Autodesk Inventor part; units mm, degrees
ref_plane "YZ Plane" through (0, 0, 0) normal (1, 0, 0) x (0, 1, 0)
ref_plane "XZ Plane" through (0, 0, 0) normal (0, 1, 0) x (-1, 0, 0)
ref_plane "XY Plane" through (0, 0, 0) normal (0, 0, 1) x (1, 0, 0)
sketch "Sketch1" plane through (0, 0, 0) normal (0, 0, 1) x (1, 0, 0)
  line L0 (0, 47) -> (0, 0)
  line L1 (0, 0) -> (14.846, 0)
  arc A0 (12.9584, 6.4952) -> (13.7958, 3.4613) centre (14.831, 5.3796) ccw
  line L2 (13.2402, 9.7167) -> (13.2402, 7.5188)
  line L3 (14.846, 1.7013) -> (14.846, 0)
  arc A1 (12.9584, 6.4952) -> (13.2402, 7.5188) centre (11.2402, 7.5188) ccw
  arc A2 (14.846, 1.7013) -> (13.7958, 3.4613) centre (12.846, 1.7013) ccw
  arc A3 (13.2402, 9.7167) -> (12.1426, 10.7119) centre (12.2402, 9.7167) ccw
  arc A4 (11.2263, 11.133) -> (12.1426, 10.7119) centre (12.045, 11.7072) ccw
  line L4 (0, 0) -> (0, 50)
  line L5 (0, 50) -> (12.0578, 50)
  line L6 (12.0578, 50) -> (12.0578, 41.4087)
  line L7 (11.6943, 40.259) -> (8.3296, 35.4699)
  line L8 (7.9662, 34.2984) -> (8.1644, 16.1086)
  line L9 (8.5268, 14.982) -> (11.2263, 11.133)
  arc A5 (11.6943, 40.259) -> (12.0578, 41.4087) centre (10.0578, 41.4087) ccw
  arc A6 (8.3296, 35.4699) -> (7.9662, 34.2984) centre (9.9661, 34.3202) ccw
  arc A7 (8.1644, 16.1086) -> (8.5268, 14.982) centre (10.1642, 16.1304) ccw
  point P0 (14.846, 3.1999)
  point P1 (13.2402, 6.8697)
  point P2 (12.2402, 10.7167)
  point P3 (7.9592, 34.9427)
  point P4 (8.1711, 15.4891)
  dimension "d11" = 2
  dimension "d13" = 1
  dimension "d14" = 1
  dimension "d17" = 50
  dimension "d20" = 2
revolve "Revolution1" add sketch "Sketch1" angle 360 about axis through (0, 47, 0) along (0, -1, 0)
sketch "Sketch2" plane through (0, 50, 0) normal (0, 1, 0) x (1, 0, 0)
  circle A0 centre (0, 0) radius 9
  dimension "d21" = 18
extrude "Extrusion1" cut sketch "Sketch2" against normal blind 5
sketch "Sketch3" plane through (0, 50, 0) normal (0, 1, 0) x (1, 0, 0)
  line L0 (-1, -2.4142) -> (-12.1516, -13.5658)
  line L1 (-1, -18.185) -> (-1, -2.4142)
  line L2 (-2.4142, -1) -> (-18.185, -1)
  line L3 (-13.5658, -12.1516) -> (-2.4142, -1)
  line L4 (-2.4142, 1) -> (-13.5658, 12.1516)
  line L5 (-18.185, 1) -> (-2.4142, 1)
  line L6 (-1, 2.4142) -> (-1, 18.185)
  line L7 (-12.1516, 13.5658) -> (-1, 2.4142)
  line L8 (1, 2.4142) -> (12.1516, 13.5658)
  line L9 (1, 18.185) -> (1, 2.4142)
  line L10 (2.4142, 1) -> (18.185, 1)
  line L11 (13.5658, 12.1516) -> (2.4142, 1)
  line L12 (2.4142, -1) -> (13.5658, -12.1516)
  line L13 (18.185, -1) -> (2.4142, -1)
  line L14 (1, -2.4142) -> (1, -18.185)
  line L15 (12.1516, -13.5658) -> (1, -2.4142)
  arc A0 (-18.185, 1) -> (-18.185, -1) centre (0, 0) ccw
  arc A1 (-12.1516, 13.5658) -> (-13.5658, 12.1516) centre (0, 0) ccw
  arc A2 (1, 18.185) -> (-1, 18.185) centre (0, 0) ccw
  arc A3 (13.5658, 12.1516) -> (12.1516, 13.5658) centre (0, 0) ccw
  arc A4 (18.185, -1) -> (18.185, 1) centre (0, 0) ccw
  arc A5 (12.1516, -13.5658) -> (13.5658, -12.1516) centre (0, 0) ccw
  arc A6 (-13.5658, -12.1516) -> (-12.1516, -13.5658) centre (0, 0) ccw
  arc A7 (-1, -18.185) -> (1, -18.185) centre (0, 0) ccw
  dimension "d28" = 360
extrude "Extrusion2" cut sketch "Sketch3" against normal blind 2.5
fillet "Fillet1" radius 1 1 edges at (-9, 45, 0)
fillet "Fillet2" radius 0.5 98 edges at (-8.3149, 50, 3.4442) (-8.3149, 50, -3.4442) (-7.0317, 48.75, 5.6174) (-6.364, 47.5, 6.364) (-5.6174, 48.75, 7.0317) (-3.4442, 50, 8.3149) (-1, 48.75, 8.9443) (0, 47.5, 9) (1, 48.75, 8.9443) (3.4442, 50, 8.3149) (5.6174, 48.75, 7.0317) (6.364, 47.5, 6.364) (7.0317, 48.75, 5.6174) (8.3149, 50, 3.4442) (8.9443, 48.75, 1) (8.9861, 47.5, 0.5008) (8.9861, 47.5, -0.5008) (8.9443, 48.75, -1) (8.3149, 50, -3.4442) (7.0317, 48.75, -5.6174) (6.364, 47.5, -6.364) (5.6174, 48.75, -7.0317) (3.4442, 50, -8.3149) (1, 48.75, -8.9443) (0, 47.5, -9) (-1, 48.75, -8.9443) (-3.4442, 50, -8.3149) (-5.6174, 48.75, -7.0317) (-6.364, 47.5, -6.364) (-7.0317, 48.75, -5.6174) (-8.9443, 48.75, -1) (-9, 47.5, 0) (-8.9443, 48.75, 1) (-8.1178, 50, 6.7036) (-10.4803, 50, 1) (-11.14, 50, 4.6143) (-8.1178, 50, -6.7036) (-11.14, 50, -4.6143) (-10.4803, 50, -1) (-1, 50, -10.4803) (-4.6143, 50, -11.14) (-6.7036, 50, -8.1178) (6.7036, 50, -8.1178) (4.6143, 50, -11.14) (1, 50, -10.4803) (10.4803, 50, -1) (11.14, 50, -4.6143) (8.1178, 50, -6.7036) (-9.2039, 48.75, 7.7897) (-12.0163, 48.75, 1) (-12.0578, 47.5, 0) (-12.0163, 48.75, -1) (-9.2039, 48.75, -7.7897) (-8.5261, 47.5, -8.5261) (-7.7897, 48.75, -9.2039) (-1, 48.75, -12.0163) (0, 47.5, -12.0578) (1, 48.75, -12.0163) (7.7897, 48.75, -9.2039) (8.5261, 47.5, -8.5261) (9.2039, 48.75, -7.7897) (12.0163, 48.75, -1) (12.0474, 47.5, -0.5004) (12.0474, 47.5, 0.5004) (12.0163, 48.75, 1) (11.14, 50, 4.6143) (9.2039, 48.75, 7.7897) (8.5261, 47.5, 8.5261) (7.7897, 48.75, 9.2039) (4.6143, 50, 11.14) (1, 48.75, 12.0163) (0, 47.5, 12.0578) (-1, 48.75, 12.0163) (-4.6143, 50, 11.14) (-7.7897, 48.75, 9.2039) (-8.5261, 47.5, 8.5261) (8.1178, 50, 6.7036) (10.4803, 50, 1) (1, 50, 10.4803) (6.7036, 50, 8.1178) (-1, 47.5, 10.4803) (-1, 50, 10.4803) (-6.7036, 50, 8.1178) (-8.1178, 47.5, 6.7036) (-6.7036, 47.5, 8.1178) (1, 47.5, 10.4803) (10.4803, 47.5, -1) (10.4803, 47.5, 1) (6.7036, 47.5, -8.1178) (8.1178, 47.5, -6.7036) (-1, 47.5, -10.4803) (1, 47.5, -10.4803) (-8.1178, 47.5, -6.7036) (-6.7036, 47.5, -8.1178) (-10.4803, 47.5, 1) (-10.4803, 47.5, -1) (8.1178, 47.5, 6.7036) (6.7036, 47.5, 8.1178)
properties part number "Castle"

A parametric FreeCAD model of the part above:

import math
import FreeCAD as App
import Part
import Sketcher
Q = App.Units.Quantity


def edges_at(feature, points):
    """Names of the edges that pass closest to the given points."""
    edges = feature.Shape.Edges
    near = lambda p: min(range(len(edges)), key=lambda i: edges[i].distToShape(Part.Vertex(*p))[0])
    return sorted({f"Edge{near(p) + 1}" for p in points})

doc = App.newDocument("Part")
body = doc.addObject("PartDesign::Body", "Body")

sketch1 = body.newObject("Sketcher::SketchObject", "Sketch")
sketch1.AttachmentSupport = (doc.getObject("XY_Plane"), [""])
sketch1.MapMode = "FlatFace"
sketch1.addGeometry([
    Part.LineSegment(App.Vector(0, 50, 0), App.Vector(0, 0, 0)),
    Part.LineSegment(App.Vector(0, 0, 0), App.Vector(14.8, 0, 0)),
    Part.LineSegment(App.Vector(14.8, 0, 0), App.Vector(14.8, 1.7, 0)),
    Part.ArcOfCircle(Part.Circle(App.Vector(12.8, 1.7, 0), App.Vector(0, 0, 1), 2), math.radians(0), math.radians(62)),
    Part.ArcOfCircle(Part.Circle(App.Vector(14.8, 5.4, 0), App.Vector(0, 0, 1), 2.2), math.radians(149), math.radians(242)),
    Part.ArcOfCircle(Part.Circle(App.Vector(11.2, 7.5, 0), App.Vector(0, 0, 1), 2), math.radians(-31), math.radians(0)),
    Part.LineSegment(App.Vector(13.2, 7.5, 0), App.Vector(13.2, 9.7, 0)),
    Part.ArcOfCircle(Part.Circle(App.Vector(12.2, 9.7, 0), App.Vector(0, 0, 1), 1), math.radians(0), math.radians(96)),
    Part.ArcOfCircle(Part.Circle(App.Vector(12, 11.7, 0), App.Vector(0, 0, 1), 1), math.radians(-145), math.radians(-84)),
    Part.LineSegment(App.Vector(11.2, 11.1, 0), App.Vector(8.5, 15, 0)),
    Part.ArcOfCircle(Part.Circle(App.Vector(10.2, 16.1, 0), App.Vector(0, 0, 1), 2), math.radians(-179), math.radians(-145)),
    Part.LineSegment(App.Vector(8.2, 16.1, 0), App.Vector(8, 34.3, 0)),
    Part.ArcOfCircle(Part.Circle(App.Vector(10, 34.3, 0), App.Vector(0, 0, 1), 2), math.radians(145), math.radians(181)),
    Part.LineSegment(App.Vector(8.3, 35.5, 0), App.Vector(11.7, 40.3, 0)),
    Part.ArcOfCircle(Part.Circle(App.Vector(10.1, 41.4, 0), App.Vector(0, 0, 1), 2), math.radians(-35), math.radians(0)),
    Part.LineSegment(App.Vector(12.1, 41.4, 0), App.Vector(12.1, 50, 0)),
    Part.LineSegment(App.Vector(12.1, 50, 0), App.Vector(0, 50, 0)),
], False)
sketch1.addConstraint([
    Sketcher.Constraint("Coincident", 0, 2, 1, 1),
    Sketcher.Constraint("Coincident", 1, 2, 2, 1),
    Sketcher.Constraint("Tangent", 2, 2, 3, 1),
    Sketcher.Constraint("Tangent", 3, 2, 4, 2),
    Sketcher.Constraint("Tangent", 4, 1, 5, 1),
    Sketcher.Constraint("Tangent", 5, 2, 6, 1),
    Sketcher.Constraint("Tangent", 6, 2, 7, 1),
    Sketcher.Constraint("Tangent", 7, 2, 8, 2),
    Sketcher.Constraint("Tangent", 8, 1, 9, 1),
    Sketcher.Constraint("Tangent", 9, 2, 10, 2),
    Sketcher.Constraint("Tangent", 10, 1, 11, 1),
    Sketcher.Constraint("Tangent", 11, 2, 12, 2),
    Sketcher.Constraint("Tangent", 12, 1, 13, 1),
    Sketcher.Constraint("Tangent", 13, 2, 14, 1),
    Sketcher.Constraint("Tangent", 14, 2, 15, 1),
    Sketcher.Constraint("Coincident", 15, 2, 16, 1),
    Sketcher.Constraint("Coincident", 16, 2, 0, 1),
    Sketcher.Constraint("Vertical", 0),
    Sketcher.Constraint("Horizontal", 1),
    Sketcher.Constraint("Vertical", 2),
    Sketcher.Constraint("Vertical", 6),
    Sketcher.Constraint("Vertical", 15),
    Sketcher.Constraint("Horizontal", 16),
    Sketcher.Constraint("Coincident", 0, 2, -1, 1),
    Sketcher.Constraint("Equal", 3, 5),
    Sketcher.Constraint("Equal", 7, 8),
    Sketcher.Constraint("Equal", 5, 10),
    Sketcher.Constraint("Equal", 10, 12),
    Sketcher.Constraint("Equal", 12, 14),
    Sketcher.Constraint("Radius", 3, 2.0),
    Sketcher.Constraint("Radius", 7, 1.0),
    Sketcher.Constraint("DistanceY", 0, 2, 0, 1, 50.0),
    Sketcher.Constraint("Angle", 13, Q("54.909 deg")),
    Sketcher.Constraint("Radius", 4, 2.1797),
    Sketcher.Constraint("DistanceX", 1, 1, 1, 2, 14.846),
    Sketcher.Constraint("DistanceY", 6, 1, 6, 2, 2.198),
    Sketcher.Constraint("DistanceY", -1, 1, 12, 1, 35.47),
    Sketcher.Constraint("DistanceY", 5, 3, 14, 3, 33.89),
    Sketcher.Constraint("DistanceY", 3, 3, 3, 2, 1.76),
    Sketcher.Constraint("DistanceY", 7, 2, 9, 2, 4.27),
    Sketcher.Constraint("DistanceX", 10, 3, 13, 2, 1.53),
    Sketcher.Constraint("Distance", 13, 5.853),
    Sketcher.Constraint("DistanceX", 16, 2, 16, 1, 12.0578),
    Sketcher.Constraint("DistanceY", 2, 1, 2, 2, 1.7013),
    Sketcher.Constraint("DistanceX", -1, 1, 8, 3, 12.045),
])
revolution = body.newObject("PartDesign::Revolution", "Revolution")
revolution.Profile = sketch1
revolution.ReferenceAxis = (sketch1, ["V_Axis"])
revolution.Angle = 360

sketch2 = body.newObject("Sketcher::SketchObject", "Sketch001")
sketch2.AttachmentSupport = (doc.getObject("XZ_Plane"), [""])
sketch2.MapMode = "FlatFace"
sketch2.AttachmentOffset = App.Placement(App.Vector(0, 0, -50), App.Rotation())
sketch2.addGeometry(Part.Circle(App.Vector(0, 0, 0), App.Vector(0, 0, 1), 9), False)
sketch2.addConstraint([
    Sketcher.Constraint("Coincident", 0, 3, -1, 1),
    Sketcher.Constraint("Diameter", 0, 18.0),
])
pocket1 = body.newObject("PartDesign::Pocket", "Pocket")
pocket1.Profile = sketch2
pocket1.Length = 5
pocket1.Reversed = True

sketch3 = body.newObject("Sketcher::SketchObject", "Sketch002")
sketch3.AttachmentSupport = (doc.getObject("XZ_Plane"), [""])
sketch3.MapMode = "FlatFace"
sketch3.AttachmentOffset = App.Placement(App.Vector(0, 0, -50), App.Rotation())
sketch3.addGeometry([
    Part.LineSegment(App.Vector(-12.2, 13.6, 0), App.Vector(-1, 2.4, 0)),
    Part.LineSegment(App.Vector(-1, 2.4, 0), App.Vector(-1, 18.2, 0)),
    Part.ArcOfCircle(Part.Circle(App.Vector(0, 0, 0), App.Vector(0, 0, 1), 18.2), math.radians(86.85), math.radians(93.15)),
    Part.LineSegment(App.Vector(1, 18.2, 0), App.Vector(1, 2.4, 0)),
    Part.LineSegment(App.Vector(1, 2.4, 0), App.Vector(12.2, 13.6, 0)),
    Part.ArcOfCircle(Part.Circle(App.Vector(0, 0, 0), App.Vector(0, 0, 1), 18.2), math.radians(41.85), math.radians(48.15)),
    Part.LineSegment(App.Vector(13.6, 12.2, 0), App.Vector(2.4, 1, 0)),
    Part.LineSegment(App.Vector(2.4, 1, 0), App.Vector(18.2, 1, 0)),
    Part.ArcOfCircle(Part.Circle(App.Vector(0, 0, 0), App.Vector(0, 0, 1), 18.2), math.radians(-3.15), math.radians(3.15)),
    Part.LineSegment(App.Vector(18.2, -1, 0), App.Vector(2.4, -1, 0)),
    Part.LineSegment(App.Vector(2.4, -1, 0), App.Vector(13.6, -12.2, 0)),
    Part.ArcOfCircle(Part.Circle(App.Vector(0, 0, 0), App.Vector(0, 0, 1), 18.2), math.radians(-48.15), math.radians(-41.85)),
    Part.LineSegment(App.Vector(12.2, -13.6, 0), App.Vector(1, -2.4, 0)),
    Part.LineSegment(App.Vector(1, -2.4, 0), App.Vector(1, -18.2, 0)),
    Part.ArcOfCircle(Part.Circle(App.Vector(0, 0, 0), App.Vector(0, 0, 1), 18.2), math.radians(-93.15), math.radians(-86.85)),
    Part.LineSegment(App.Vector(-1, -18.2, 0), App.Vector(-1, -2.4, 0)),
    Part.LineSegment(App.Vector(-1, -2.4, 0), App.Vector(-12.2, -13.6, 0)),
    Part.ArcOfCircle(Part.Circle(App.Vector(0, 0, 0), App.Vector(0, 0, 1), 18.2), math.radians(-138.15), math.radians(-131.85)),
    Part.LineSegment(App.Vector(-13.6, -12.2, 0), App.Vector(-2.4, -1, 0)),
    Part.LineSegment(App.Vector(-2.4, -1, 0), App.Vector(-18.2, -1, 0)),
    Part.ArcOfCircle(Part.Circle(App.Vector(0, 0, 0), App.Vector(0, 0, 1), 18.2), math.radians(176.85), math.radians(183.15)),
    Part.LineSegment(App.Vector(-18.2, 1, 0), App.Vector(-2.4, 1, 0)),
    Part.LineSegment(App.Vector(-2.4, 1, 0), App.Vector(-13.6, 12.2, 0)),
    Part.ArcOfCircle(Part.Circle(App.Vector(0, 0, 0), App.Vector(0, 0, 1), 18.2), math.radians(131.85), math.radians(138.15)),
], False)
sketch3.addConstraint([
    Sketcher.Constraint("Coincident", 0, 2, 1, 1),
    Sketcher.Constraint("Coincident", 1, 2, 2, 2),
    Sketcher.Constraint("Coincident", 2, 1, 3, 1),
    Sketcher.Constraint("Coincident", 3, 2, 4, 1),
    Sketcher.Constraint("Coincident", 4, 2, 5, 2),
    Sketcher.Constraint("Coincident", 5, 1, 6, 1),
    Sketcher.Constraint("Coincident", 6, 2, 7, 1),
    Sketcher.Constraint("Coincident", 7, 2, 8, 2),
    Sketcher.Constraint("Coincident", 8, 1, 9, 1),
    Sketcher.Constraint("Coincident", 9, 2, 10, 1),
    Sketcher.Constraint("Coincident", 10, 2, 11, 2),
    Sketcher.Constraint("Coincident", 11, 1, 12, 1),
    Sketcher.Constraint("Coincident", 12, 2, 13, 1),
    Sketcher.Constraint("Coincident", 13, 2, 14, 2),
    Sketcher.Constraint("Coincident", 14, 1, 15, 1),
    Sketcher.Constraint("Coincident", 15, 2, 16, 1),
    Sketcher.Constraint("Coincident", 16, 2, 17, 2),
    Sketcher.Constraint("Coincident", 17, 1, 18, 1),
    Sketcher.Constraint("Coincident", 18, 2, 19, 1),
    Sketcher.Constraint("Coincident", 19, 2, 20, 2),
    Sketcher.Constraint("Coincident", 20, 1, 21, 1),
    Sketcher.Constraint("Coincident", 21, 2, 22, 1),
    Sketcher.Constraint("Coincident", 22, 2, 23, 2),
    Sketcher.Constraint("Coincident", 23, 1, 0, 1),
    Sketcher.Constraint("Vertical", 1),
    Sketcher.Constraint("Vertical", 3),
    Sketcher.Constraint("Horizontal", 7),
    Sketcher.Constraint("Horizontal", 9),
    Sketcher.Constraint("Vertical", 13),
    Sketcher.Constraint("Vertical", 15),
    Sketcher.Constraint("Horizontal", 19),
    Sketcher.Constraint("Horizontal", 21),
    Sketcher.Constraint("Coincident", 2, 3, -1, 1),
    Sketcher.Constraint("Coincident", 5, 3, -1, 1),
    Sketcher.Constraint("Coincident", 8, 3, -1, 1),
    Sketcher.Constraint("Coincident", 11, 3, -1, 1),
    Sketcher.Constraint("Coincident", 14, 3, -1, 1),
    Sketcher.Constraint("Coincident", 17, 3, -1, 1),
    Sketcher.Constraint("Coincident", 20, 3, -1, 1),
    Sketcher.Constraint("Coincident", 23, 3, -1, 1),
    Sketcher.Constraint("Equal", 2, 5),
    Sketcher.Constraint("Equal", 5, 8),
    Sketcher.Constraint("Equal", 8, 11),
    Sketcher.Constraint("Equal", 11, 14),
    Sketcher.Constraint("Equal", 14, 17),
    Sketcher.Constraint("Equal", 17, 20),
    Sketcher.Constraint("Equal", 20, 23),
    Sketcher.Constraint("Symmetric", 0, 2, 12, 2, -1, 1),
    Sketcher.Constraint("Symmetric", 3, 2, 15, 2, -1, 1),
    Sketcher.Constraint("Symmetric", 6, 2, 18, 2, -1, 1),
    Sketcher.Constraint("Symmetric", 9, 2, 21, 2, -1, 1),
    Sketcher.Constraint("Symmetric", 0, 2, 3, 2, -2),
    Sketcher.Constraint("Symmetric", 9, 2, 18, 2, -2),
    Sketcher.Constraint("Perpendicular", 0, 4),
    Sketcher.Constraint("Parallel", 4, 6),
    Sketcher.Constraint("Perpendicular", 6, 10),
    Sketcher.Constraint("Parallel", 10, 12),
    Sketcher.Constraint("Perpendicular", 12, 16),
    Sketcher.Constraint("Parallel", 16, 18),
    Sketcher.Constraint("Perpendicular", 18, 22),
    Sketcher.Constraint("Horizontal", 11, 1, 16, 2),
    Sketcher.Constraint("Equal", 21, 1),
    Sketcher.Constraint("Equal", 4, 6),
    Sketcher.Constraint("DistanceX", 0, 2, -1, 1, 1.0),
    Sketcher.Constraint("Radius", 2, 18.2125),
    Sketcher.Constraint("DistanceX", 7, 1, 7, 2, 15.7708),
])
pocket2 = body.newObject("PartDesign::Pocket", "Pocket001")
pocket2.Profile = sketch3
pocket2.Length = 2.5
pocket2.Reversed = True
doc.recompute()

fillet = body.newObject("PartDesign::Fillet", "Fillet")
fillet.Base = (pocket2, edges_at(pocket2, [(-9, 45, 0)]))
fillet.Radius = 1
doc.recompute()

fillet2 = body.newObject("PartDesign::Fillet", "Fillet001")
fillet2.Base = (fillet, edges_at(fillet, [
    (-8.315, 50, 3.444),
    (-8.315, 50, -3.444),
    (-7.032, 48.75, 5.617),
    (-6.364, 47.5, 6.364),
    (-5.617, 48.75, 7.032),
    (-3.444, 50, 8.315),
    (-1, 48.75, 8.944),
    (0, 47.5, 9),
    (1, 48.75, 8.944),
    (3.444, 50, 8.315),
    (5.617, 48.75, 7.032),
    (6.364, 47.5, 6.364),
    (7.032, 48.75, 5.617),
    (8.315, 50, 3.444),
    (8.944, 48.75, 1),
    (8.986, 47.5, 0.501),
    (8.986, 47.5, -0.501),
    (8.944, 48.75, -1),
    (8.315, 50, -3.444),
    (7.032, 48.75, -5.617),
    (6.364, 47.5, -6.364),
    (5.617, 48.75, -7.032),
    (3.444, 50, -8.315),
    (1, 48.75, -8.944),
    (0, 47.5, -9),
    (-1, 48.75, -8.944),
    (-3.444, 50, -8.315),
    (-5.617, 48.75, -7.032),
    (-6.364, 47.5, -6.364),
    (-7.032, 48.75, -5.617),
    (-8.944, 48.75, -1),
    (-9, 47.5, 0),
    (-8.944, 48.75, 1),
    (-8.118, 50, 6.704),
    (-10.48, 50, 1),
    (-11.14, 50, 4.614),
    (-8.118, 50, -6.704),
    (-11.14, 50, -4.614),
    (-10.48, 50, -1),
    (-1, 50, -10.48),
    (-4.614, 50, -11.14),
    (-6.704, 50, -8.118),
    (6.704, 50, -8.118),
    (4.614, 50, -11.14),
    (1, 50, -10.48),
    (10.48, 50, -1),
    (11.14, 50, -4.614),
    (8.118, 50, -6.704),
    (-9.204, 48.75, 7.79),
    (-12.016, 48.75, 1),
    (-12.058, 47.5, 0),
    (-12.016, 48.75, -1),
    (-9.204, 48.75, -7.79),
    (-8.526, 47.5, -8.526),
    (-7.79, 48.75, -9.204),
    (-1, 48.75, -12.016),
    (0, 47.5, -12.058),
    (1, 48.75, -12.016),
    (7.79, 48.75, -9.204),
    (8.526, 47.5, -8.526),
    (9.204, 48.75, -7.79),
    (12.016, 48.75, -1),
    (12.047, 47.5, -0.5),
    (12.047, 47.5, 0.5),
    (12.016, 48.75, 1),
    (11.14, 50, 4.614),
    (9.204, 48.75, 7.79),
    (8.526, 47.5, 8.526),
    (7.79, 48.75, 9.204),
    (4.614, 50, 11.14),
    (1, 48.75, 12.016),
    (0, 47.5, 12.058),
    (-1, 48.75, 12.016),
    (-4.614, 50, 11.14),
    (-7.79, 48.75, 9.204),
    (-8.526, 47.5, 8.526),
    (8.118, 50, 6.704),
    (10.48, 50, 1),
    (1, 50, 10.48),
    (6.704, 50, 8.118),
    (-1, 47.5, 10.48),
    (-1, 50, 10.48),
    (-6.704, 50, 8.118),
    (-8.118, 47.5, 6.704),
    (-6.704, 47.5, 8.118),
    (1, 47.5, 10.48),
    (10.48, 47.5, -1),
    (10.48, 47.5, 1),
    (6.704, 47.5, -8.118),
    (8.118, 47.5, -6.704),
    (-1, 47.5, -10.48),
    (1, 47.5, -10.48),
    (-8.118, 47.5, -6.704),
    (-6.704, 47.5, -8.118),
    (-10.48, 47.5, 1),
    (-10.48, 47.5, -1),
    (8.118, 47.5, 6.704),
    (6.704, 47.5, 8.118),
]))
fillet2.Radius = 0.5

doc.recompute()
